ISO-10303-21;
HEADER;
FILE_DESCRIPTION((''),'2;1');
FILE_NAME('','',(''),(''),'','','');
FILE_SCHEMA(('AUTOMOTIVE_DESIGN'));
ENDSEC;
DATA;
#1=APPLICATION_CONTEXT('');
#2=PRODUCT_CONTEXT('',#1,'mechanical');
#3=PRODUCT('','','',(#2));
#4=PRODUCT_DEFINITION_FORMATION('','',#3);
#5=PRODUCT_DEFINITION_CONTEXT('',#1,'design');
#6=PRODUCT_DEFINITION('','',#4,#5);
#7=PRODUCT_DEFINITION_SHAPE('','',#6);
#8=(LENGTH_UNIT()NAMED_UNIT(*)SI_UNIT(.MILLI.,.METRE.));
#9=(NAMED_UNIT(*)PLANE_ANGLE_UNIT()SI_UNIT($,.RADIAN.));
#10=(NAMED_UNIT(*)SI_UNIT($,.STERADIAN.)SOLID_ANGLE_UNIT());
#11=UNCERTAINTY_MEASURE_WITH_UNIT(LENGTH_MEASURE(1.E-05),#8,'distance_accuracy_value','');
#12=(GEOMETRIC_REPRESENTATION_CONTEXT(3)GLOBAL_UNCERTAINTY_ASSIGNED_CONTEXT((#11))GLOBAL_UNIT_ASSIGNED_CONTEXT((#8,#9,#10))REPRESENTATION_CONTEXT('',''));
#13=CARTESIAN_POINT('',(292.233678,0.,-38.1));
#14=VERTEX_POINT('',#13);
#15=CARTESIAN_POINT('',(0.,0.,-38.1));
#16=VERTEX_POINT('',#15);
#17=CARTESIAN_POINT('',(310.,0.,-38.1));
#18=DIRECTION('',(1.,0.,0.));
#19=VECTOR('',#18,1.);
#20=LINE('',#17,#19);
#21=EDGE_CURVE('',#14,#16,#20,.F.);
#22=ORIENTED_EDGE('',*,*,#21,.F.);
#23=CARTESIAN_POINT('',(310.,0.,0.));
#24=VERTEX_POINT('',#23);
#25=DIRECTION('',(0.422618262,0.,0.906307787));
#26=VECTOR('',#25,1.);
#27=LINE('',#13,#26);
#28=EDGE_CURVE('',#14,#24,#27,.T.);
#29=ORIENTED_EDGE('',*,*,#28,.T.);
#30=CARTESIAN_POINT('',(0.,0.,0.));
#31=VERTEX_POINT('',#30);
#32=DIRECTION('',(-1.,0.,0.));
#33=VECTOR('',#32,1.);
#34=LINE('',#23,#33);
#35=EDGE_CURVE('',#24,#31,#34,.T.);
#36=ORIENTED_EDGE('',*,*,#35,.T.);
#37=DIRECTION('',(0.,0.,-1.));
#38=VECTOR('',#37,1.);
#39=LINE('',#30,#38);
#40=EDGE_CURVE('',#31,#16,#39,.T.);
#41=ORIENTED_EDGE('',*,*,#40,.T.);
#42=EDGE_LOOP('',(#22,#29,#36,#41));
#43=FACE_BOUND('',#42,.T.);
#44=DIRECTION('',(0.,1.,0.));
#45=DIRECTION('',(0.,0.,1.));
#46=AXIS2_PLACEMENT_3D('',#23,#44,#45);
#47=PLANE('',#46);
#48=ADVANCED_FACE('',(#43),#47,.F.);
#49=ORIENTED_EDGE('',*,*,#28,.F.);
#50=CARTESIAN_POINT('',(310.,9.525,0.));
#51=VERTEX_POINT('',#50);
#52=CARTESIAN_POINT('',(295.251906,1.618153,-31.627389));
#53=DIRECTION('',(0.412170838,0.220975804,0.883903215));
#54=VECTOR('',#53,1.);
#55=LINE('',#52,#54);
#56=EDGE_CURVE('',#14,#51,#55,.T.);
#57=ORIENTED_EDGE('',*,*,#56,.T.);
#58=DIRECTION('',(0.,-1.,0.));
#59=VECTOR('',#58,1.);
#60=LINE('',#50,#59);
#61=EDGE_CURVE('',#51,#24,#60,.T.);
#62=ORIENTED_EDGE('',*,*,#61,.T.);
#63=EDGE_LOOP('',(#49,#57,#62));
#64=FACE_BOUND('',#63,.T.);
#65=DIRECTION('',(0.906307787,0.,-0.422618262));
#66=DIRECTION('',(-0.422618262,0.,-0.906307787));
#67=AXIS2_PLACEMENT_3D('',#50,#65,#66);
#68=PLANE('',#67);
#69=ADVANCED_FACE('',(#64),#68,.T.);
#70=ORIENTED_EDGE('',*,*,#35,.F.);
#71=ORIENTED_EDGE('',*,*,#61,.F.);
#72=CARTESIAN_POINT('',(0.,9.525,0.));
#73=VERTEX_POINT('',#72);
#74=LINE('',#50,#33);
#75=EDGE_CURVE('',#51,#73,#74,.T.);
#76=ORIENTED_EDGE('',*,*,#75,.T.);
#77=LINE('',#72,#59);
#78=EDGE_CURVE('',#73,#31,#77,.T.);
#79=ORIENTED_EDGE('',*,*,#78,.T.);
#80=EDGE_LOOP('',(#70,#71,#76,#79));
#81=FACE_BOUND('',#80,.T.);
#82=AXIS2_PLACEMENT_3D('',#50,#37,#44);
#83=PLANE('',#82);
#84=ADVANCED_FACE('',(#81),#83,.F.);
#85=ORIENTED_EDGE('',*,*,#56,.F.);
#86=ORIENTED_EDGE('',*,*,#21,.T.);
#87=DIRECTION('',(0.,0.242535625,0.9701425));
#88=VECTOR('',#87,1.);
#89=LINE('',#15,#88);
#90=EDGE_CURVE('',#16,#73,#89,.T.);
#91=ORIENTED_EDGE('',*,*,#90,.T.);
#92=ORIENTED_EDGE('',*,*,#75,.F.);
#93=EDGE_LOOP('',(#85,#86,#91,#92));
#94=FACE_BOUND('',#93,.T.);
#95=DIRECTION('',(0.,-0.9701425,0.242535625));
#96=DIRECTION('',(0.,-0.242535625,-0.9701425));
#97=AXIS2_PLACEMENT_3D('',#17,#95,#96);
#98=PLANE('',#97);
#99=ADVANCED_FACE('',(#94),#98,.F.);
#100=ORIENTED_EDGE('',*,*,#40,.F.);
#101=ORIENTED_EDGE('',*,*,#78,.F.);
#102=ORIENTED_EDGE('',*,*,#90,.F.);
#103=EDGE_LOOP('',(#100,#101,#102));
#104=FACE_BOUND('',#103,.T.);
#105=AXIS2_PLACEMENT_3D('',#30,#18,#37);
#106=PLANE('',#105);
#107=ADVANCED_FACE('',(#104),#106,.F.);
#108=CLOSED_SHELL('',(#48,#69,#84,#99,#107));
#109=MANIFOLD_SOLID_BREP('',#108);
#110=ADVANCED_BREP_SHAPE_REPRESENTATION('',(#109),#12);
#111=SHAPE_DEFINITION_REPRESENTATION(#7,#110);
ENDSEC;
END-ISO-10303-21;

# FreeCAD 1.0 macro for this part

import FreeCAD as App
import Part
import Sketcher

V = App.Vector
Q = App.Units.Quantity

doc = App.newDocument("Part")
params = doc.addObject("Spreadsheet::Sheet", "Params")
for row, (alias, value) in enumerate([
    ("sketch1_height", "1.5 in"),
    ("sketch1_width", "0.375 in"),
    ("pad1_length", "310 mm"),
    ("sketch2_height", "1.5 in"),
], start=1):
    params.set(f"A{row}", alias)
    params.set(f"B{row}", "=" + value)
    params.setAlias(f"B{row}", alias)

body = doc.addObject("PartDesign::Body", "Body")

# Sketch on YZ plane
sketch1 = body.newObject("Sketcher::SketchObject", "Sketch")
sketch1.AttachmentSupport = (doc.getObject("YZ_Plane"), [""])
sketch1.MapMode = "FlatFace"
sketch1.addGeometry(Part.LineSegment(V(0, 0, 0), V(0, -38, 0)), False)
sketch1.addGeometry(Part.LineSegment(V(0, -38, 0), V(10, 0, 0)), False)
sketch1.addGeometry(Part.LineSegment(V(10, 0, 0), V(0, 0, 0)), False)
sketch1.addConstraint(Sketcher.Constraint("Coincident", 0, 2, 1, 1))
sketch1.addConstraint(Sketcher.Constraint("Coincident", 1, 2, 2, 1))
sketch1.addConstraint(Sketcher.Constraint("Coincident", 2, 2, 0, 1))
sketch1.addConstraint(Sketcher.Constraint("Vertical", 0))
sketch1.addConstraint(Sketcher.Constraint("Horizontal", 2))
sketch1.addConstraint(Sketcher.Constraint("Coincident", 2, 2, -1, 1))
sketch1.addConstraint(Sketcher.Constraint("DistanceY", 0, 2, 0, 1, Q("1.5 in")))
sketch1.addConstraint(Sketcher.Constraint("DistanceX", 2, 2, 2, 1, Q("0.375 in")))
sketch1.setExpression("Constraints[6]", "Params.sketch1_height")
sketch1.setExpression("Constraints[7]", "Params.sketch1_width")
pad1 = body.newObject("PartDesign::Pad", "Pad")
pad1.Profile = sketch1
pad1.setExpression("Length", "Params.pad1_length")

# Sketch on XZ plane
sketch2 = body.newObject("Sketcher::SketchObject", "Sketch001")
sketch2.AttachmentSupport = (doc.getObject("XZ_Plane"), [""])
sketch2.MapMode = "FlatFace"
sketch2.addGeometry(Part.LineSegment(V(292.233678, -38.1, 0), V(310, 0, 0)), False)
sketch2.addGeometry(Part.LineSegment(V(310, 0, 0), V(310, -38.1, 0)), False)
sketch2.addGeometry(Part.LineSegment(V(310, -38.1, 0), V(292.233678, -38.1, 0)), False)
sketch2.addConstraint(Sketcher.Constraint("Coincident", 0, 2, 1, 1))
sketch2.addConstraint(Sketcher.Constraint("Coincident", 1, 2, 2, 1))
sketch2.addConstraint(Sketcher.Constraint("Coincident", 2, 2, 0, 1))
sketch2.addConstraint(Sketcher.Constraint("Vertical", 1))
sketch2.addConstraint(Sketcher.Constraint("Horizontal", 2))
sketch2.addConstraint(Sketcher.Constraint("PointOnObject", 0, 2, -1))
sketch2.addConstraint(Sketcher.Constraint("DistanceY", 1, 2, 1, 1, Q("1.5 in")))
sketch2.addConstraint(Sketcher.Constraint("Angle", 0, Q("65 deg")))
sketch2.addConstraint(Sketcher.Constraint("DistanceX", -1, 1, 0, 2, 310.0))
sketch2.setExpression("Constraints[6]", "Params.sketch2_height")
pocket1 = body.newObject("PartDesign::Pocket", "Pocket")
pocket1.Profile = sketch2
pocket1.Type = "ThroughAll"
pocket1.Midplane = True

doc.recompute()
